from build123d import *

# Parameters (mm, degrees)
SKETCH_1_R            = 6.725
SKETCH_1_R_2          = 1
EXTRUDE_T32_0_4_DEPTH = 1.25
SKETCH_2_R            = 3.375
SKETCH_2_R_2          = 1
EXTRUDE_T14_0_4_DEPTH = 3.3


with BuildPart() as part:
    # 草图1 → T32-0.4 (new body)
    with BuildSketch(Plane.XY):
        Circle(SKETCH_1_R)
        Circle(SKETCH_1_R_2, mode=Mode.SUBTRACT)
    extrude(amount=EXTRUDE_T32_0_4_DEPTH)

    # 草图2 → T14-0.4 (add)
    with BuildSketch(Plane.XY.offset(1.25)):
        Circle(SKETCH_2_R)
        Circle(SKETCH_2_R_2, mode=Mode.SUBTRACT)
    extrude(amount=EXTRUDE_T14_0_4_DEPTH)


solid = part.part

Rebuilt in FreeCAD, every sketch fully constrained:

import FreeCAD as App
import Part
import Sketcher

doc = App.newDocument("Part")
params = doc.addObject("Spreadsheet::Sheet", "Params")
for row, (alias, value) in enumerate([
    ("sketch1_diameter", "2 mm"),
    ("sketch1_diameter2", "13.45 mm"),
    ("pad1_length", "1.25 mm"),
    ("sketch2_diameter", "2 mm"),
    ("sketch2_diameter2", "6.75 mm"),
    ("pad2_length", "3.3 mm"),
], start=1):
    params.set(f"A{row}", alias)
    params.set(f"B{row}", "=" + value)
    params.setAlias(f"B{row}", alias)

body = doc.addObject("PartDesign::Body", "Body")

# Sketch on XY plane
sketch1 = doc.addObject("Sketcher::SketchObject", "Sketch")
body.addObject(sketch1)
sketch1.AttachmentSupport = (doc.XY_Plane, [""])
sketch1.MapMode = "FlatFace"
sketch1.addGeometry([
    Part.Circle(App.Vector(0, 0, 0), App.Vector(0, 0, 1), 6.7),
    Part.Circle(App.Vector(0, 0, 0), App.Vector(0, 0, 1), 1),
], False)
sketch1.addConstraint([
    Sketcher.Constraint("Coincident", 0, 3, -1, 1),
    Sketcher.Constraint("Coincident", 1, 3, -1, 1),
    Sketcher.Constraint("Diameter", 1, 2.0),
    Sketcher.Constraint("Diameter", 0, 13.45),
])
sketch1.setExpression("Constraints[2]", "Params.sketch1_diameter")
sketch1.setExpression("Constraints[3]", "Params.sketch1_diameter2")
pad1 = doc.addObject("PartDesign::Pad", "Pad")
body.addObject(pad1)
pad1.Profile = sketch1
pad1.setExpression("Length", "Params.pad1_length")

# Sketch on XY plane
sketch2 = doc.addObject("Sketcher::SketchObject", "Sketch001")
body.addObject(sketch2)
sketch2.AttachmentSupport = (doc.XY_Plane, [""])
sketch2.MapMode = "FlatFace"
sketch2.AttachmentOffset = App.Placement(App.Vector(0, 0, 1.25), App.Rotation())
sketch2.addGeometry([
    Part.Circle(App.Vector(0, 0, 0), App.Vector(0, 0, 1), 3.4),
    Part.Circle(App.Vector(0, 0, 0), App.Vector(0, 0, 1), 1),
], False)
sketch2.addConstraint([
    Sketcher.Constraint("Coincident", 0, 3, -1, 1),
    Sketcher.Constraint("Coincident", 1, 3, -1, 1),
    Sketcher.Constraint("Diameter", 1, 2.0),
    Sketcher.Constraint("Diameter", 0, 6.75),
])
sketch2.setExpression("Constraints[2]", "Params.sketch2_diameter")
sketch2.setExpression("Constraints[3]", "Params.sketch2_diameter2")
pad2 = doc.addObject("PartDesign::Pad", "Pad001")
body.addObject(pad2)
pad2.Profile = sketch2
pad2.setExpression("Length", "Params.pad2_length")

doc.recompute()
